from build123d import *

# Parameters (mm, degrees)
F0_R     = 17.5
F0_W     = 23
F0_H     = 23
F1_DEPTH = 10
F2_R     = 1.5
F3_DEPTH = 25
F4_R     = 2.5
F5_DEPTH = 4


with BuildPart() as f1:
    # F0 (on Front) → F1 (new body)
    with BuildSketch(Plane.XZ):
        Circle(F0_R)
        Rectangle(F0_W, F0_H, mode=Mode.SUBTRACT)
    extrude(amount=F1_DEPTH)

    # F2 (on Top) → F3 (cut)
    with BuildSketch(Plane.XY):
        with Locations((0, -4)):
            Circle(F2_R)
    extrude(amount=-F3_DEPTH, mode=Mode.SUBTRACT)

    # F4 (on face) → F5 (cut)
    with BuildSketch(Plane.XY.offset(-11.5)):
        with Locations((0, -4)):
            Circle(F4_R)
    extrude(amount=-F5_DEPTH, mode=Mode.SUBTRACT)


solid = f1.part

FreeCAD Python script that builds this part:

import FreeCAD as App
import Part
import Sketcher

V = App.Vector

doc = App.newDocument("Part")
params = doc.addObject("Spreadsheet::Sheet", "Params")
for row, (alias, value) in enumerate([
    ("sketch1_diameter", "35 mm"),
    ("sketch1_width", "23 mm"),
    ("pad1_length", "10 mm"),
    ("sketch2_diameter", "3 mm"),
    ("pocket1_length", "25 mm"),
    ("sketch3_diameter", "5 mm"),
    ("pocket2_length", "4 mm"),
], start=1):
    params.set(f"A{row}", alias)
    params.set(f"B{row}", "=" + value)
    params.setAlias(f"B{row}", alias)

body = doc.addObject("PartDesign::Body", "Body")

sketch1 = doc.addObject("Sketcher::SketchObject", "Sketch")
body.addObject(sketch1)
sketch1.AttachmentSupport = (doc.XZ_Plane, [""])
sketch1.MapMode = "FlatFace"
sketch1.addGeometry([
    Part.Circle(V(0, 0, 0), V(0, 0, 1), 18),
    Part.LineSegment(V(12, -12, 0), V(-12, -12, 0)),
    Part.LineSegment(V(-12, -12, 0), V(-12, 12, 0)),
    Part.LineSegment(V(-12, 12, 0), V(12, 12, 0)),
    Part.LineSegment(V(12, 12, 0), V(12, -12, 0)),
], False)
sketch1.addConstraint([
    Sketcher.Constraint("Coincident", 1, 2, 2, 1),
    Sketcher.Constraint("Coincident", 2, 2, 3, 1),
    Sketcher.Constraint("Coincident", 3, 2, 4, 1),
    Sketcher.Constraint("Coincident", 4, 2, 1, 1),
    Sketcher.Constraint("Horizontal", 1),
    Sketcher.Constraint("Vertical", 2),
    Sketcher.Constraint("Horizontal", 3),
    Sketcher.Constraint("Vertical", 4),
    Sketcher.Constraint("Coincident", 0, 3, -1, 1),
    Sketcher.Constraint("Symmetric", 1, 2, 3, 2, -1, 1),
    Sketcher.Constraint("Equal", 3, 2),
    Sketcher.Constraint("Diameter", 0, 35.0),
    Sketcher.Constraint("DistanceX", 1, 2, 1, 1, 23.0),
])
sketch1.setExpression("Constraints[11]", "Params.sketch1_diameter")
sketch1.setExpression("Constraints[12]", "Params.sketch1_width")
pad1 = doc.addObject("PartDesign::Pad", "Pad")
body.addObject(pad1)
pad1.Profile = sketch1
pad1.setExpression("Length", "Params.pad1_length")

sketch2 = doc.addObject("Sketcher::SketchObject", "Sketch001")
body.addObject(sketch2)
sketch2.AttachmentSupport = (doc.XY_Plane, [""])
sketch2.MapMode = "FlatFace"
sketch2.addGeometry(Part.Circle(V(0, -4, 0), V(0, 0, 1), 1.5), False)
sketch2.addConstraint([
    Sketcher.Constraint("PointOnObject", 0, 3, -2),
    Sketcher.Constraint("Diameter", 0, 3.0),
    Sketcher.Constraint("DistanceY", 0, 3, -1, 1, 4.0),
])
sketch2.setExpression("Constraints[1]", "Params.sketch2_diameter")
pocket1 = doc.addObject("PartDesign::Pocket", "Pocket")
body.addObject(pocket1)
pocket1.Profile = sketch2
pocket1.setExpression("Length", "Params.pocket1_length")

sketch3 = doc.addObject("Sketcher::SketchObject", "Sketch002")
body.addObject(sketch3)
sketch3.AttachmentSupport = (doc.XY_Plane, [""])
sketch3.MapMode = "FlatFace"
sketch3.AttachmentOffset = App.Placement(V(0, 0, -11.5), App.Rotation())
sketch3.addGeometry(Part.Circle(V(0, -4, 0), V(0, 0, 1), 2.5), False)
sketch3.addConstraint([
    Sketcher.Constraint("PointOnObject", 0, 3, -2),
    Sketcher.Constraint("Diameter", 0, 5.0),
    Sketcher.Constraint("DistanceY", 0, 3, -1, 1, 4.0),
])
sketch3.setExpression("Constraints[1]", "Params.sketch3_diameter")
pocket2 = doc.addObject("PartDesign::Pocket", "Pocket001")
body.addObject(pocket2)
pocket2.Profile = sketch3
pocket2.setExpression("Length", "Params.pocket2_length")

doc.recompute()
